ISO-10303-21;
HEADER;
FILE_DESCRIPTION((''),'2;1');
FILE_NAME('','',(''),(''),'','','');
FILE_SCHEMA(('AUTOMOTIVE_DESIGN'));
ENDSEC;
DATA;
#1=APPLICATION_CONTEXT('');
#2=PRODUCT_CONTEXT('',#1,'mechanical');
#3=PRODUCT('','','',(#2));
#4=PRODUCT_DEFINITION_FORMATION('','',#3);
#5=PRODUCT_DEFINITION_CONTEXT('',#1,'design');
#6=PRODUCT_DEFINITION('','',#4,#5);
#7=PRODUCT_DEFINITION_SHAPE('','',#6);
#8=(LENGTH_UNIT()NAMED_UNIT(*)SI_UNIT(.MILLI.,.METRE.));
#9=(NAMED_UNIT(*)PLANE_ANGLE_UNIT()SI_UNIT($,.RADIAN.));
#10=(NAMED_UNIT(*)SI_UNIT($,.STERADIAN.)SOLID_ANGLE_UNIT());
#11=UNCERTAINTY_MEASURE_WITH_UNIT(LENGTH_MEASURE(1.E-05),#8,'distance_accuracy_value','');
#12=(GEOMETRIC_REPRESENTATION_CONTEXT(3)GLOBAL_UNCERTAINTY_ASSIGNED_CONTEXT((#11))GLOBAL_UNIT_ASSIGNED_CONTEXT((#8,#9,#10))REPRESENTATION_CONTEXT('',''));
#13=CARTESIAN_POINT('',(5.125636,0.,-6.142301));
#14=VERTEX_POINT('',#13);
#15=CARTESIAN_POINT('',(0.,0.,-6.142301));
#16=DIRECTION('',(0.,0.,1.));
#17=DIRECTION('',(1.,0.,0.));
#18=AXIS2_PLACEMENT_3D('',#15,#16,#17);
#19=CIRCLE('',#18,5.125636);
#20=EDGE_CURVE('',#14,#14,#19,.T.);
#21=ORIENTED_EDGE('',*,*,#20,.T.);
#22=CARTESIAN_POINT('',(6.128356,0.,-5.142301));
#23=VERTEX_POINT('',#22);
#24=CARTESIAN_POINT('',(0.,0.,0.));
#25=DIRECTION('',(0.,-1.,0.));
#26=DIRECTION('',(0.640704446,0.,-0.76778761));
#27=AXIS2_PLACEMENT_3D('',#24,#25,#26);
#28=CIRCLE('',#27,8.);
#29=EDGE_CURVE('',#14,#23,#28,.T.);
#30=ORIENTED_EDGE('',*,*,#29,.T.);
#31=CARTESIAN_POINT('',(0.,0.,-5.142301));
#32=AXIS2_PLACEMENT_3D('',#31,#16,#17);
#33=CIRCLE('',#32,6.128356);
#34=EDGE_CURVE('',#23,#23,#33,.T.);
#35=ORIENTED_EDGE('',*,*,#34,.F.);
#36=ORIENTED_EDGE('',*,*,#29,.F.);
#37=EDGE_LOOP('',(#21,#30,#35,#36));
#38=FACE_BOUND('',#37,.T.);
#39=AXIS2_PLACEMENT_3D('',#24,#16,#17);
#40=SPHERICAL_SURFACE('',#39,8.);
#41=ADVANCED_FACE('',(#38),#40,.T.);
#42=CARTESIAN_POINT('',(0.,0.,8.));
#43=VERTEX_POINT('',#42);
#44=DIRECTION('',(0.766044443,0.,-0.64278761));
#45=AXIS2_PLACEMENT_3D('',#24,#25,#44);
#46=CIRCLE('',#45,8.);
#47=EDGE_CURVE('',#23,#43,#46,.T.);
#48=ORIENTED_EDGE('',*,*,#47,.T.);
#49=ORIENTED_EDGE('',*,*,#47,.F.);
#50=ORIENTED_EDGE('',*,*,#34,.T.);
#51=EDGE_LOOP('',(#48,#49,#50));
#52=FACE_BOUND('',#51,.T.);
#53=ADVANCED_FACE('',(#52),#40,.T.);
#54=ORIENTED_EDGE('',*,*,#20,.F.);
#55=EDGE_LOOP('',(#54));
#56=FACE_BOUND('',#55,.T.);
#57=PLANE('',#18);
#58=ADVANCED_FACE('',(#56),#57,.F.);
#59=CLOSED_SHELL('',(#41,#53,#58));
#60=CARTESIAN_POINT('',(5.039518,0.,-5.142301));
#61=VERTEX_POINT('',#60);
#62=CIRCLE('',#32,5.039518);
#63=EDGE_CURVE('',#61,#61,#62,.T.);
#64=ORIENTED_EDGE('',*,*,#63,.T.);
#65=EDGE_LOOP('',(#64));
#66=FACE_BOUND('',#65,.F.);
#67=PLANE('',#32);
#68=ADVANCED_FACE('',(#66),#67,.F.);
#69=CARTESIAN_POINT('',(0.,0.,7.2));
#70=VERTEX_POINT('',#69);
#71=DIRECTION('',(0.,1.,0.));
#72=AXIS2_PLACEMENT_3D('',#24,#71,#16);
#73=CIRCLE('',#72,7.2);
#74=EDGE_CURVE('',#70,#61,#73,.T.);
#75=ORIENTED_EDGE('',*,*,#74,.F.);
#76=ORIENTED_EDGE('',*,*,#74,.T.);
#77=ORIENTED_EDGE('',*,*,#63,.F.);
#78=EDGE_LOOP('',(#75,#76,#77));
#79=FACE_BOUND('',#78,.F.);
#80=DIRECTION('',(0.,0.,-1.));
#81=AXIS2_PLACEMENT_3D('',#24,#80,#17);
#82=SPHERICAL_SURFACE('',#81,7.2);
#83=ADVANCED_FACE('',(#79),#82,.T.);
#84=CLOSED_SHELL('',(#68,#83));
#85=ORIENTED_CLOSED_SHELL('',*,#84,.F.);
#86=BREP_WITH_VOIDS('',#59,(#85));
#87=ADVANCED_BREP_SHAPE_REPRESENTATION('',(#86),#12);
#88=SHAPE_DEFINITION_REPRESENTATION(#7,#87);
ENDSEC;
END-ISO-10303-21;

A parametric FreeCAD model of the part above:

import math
import FreeCAD as App
import Part
import Sketcher
from FreeCAD import Vector

doc = App.newDocument("Part")
body = doc.addObject("PartDesign::Body", "Body")

sketch1 = body.newObject("Sketcher::SketchObject", "Sketch")
sketch1.AttachmentSupport = (doc.getObject("XZ_Plane"), [""])
sketch1.MapMode = "FlatFace"
sketch1.addGeometry([
    Part.ArcOfCircle(Part.Circle(Vector(0, 0, 0), Vector(0, 0, 1), 8), math.radians(-40), math.radians(90)),
    Part.LineSegment(Vector(0, 8, 0), Vector(0, 7.2, 0)),
    Part.ArcOfCircle(Part.Circle(Vector(0, 0, 0), Vector(0, 0, 1), 7.2), math.radians(-46), math.radians(90)),
    Part.LineSegment(Vector(5, -5.1, 0), Vector(0, -5.1, 0)),
    Part.LineSegment(Vector(0, -5.1, 0), Vector(0, -6.1, 0)),
    Part.LineSegment(Vector(0, -6.1, 0), Vector(5.1, -6.1, 0)),
    Part.ArcOfCircle(Part.Circle(Vector(0, 0, 0), Vector(0, 0, 1), 8), math.radians(-50.16), math.radians(-40)),
], False)
sketch1.addConstraint([
    Sketcher.Constraint("Coincident", 0, 2, 1, 1),
    Sketcher.Constraint("Coincident", 1, 2, 2, 2),
    Sketcher.Constraint("Coincident", 2, 1, 3, 1),
    Sketcher.Constraint("Coincident", 3, 2, 4, 1),
    Sketcher.Constraint("Coincident", 4, 2, 5, 1),
    Sketcher.Constraint("Coincident", 5, 2, 6, 1),
    Sketcher.Constraint("Tangent", 6, 2, 0, 1),
    Sketcher.Constraint("Vertical", 1),
    Sketcher.Constraint("Horizontal", 3),
    Sketcher.Constraint("Vertical", 4),
    Sketcher.Constraint("Horizontal", 5),
    Sketcher.Constraint("Coincident", 0, 3, -1, 1),
    Sketcher.Constraint("Coincident", 2, 3, -1, 1),
    Sketcher.Constraint("Equal", 0, 6),
    Sketcher.Constraint("PointOnObject", 0, 2, -2),
    Sketcher.Constraint("PointOnObject", 3, 2, -2),
    Sketcher.Constraint("Horizontal", 3, 2, 6, 2),
    Sketcher.Constraint("Radius", 0, 8.0),
    Sketcher.Constraint("Radius", 2, 7.2),
    Sketcher.Constraint("DistanceY", 4, 2, 4, 1, 1.0),
    Sketcher.Constraint("DistanceX", 3, 2, 3, 1, 5.039518),
])
revolution = body.newObject("PartDesign::Revolution", "Revolution")
revolution.Profile = sketch1
revolution.ReferenceAxis = (sketch1, ["V_Axis"])
revolution.Angle = 360

doc.recompute()
